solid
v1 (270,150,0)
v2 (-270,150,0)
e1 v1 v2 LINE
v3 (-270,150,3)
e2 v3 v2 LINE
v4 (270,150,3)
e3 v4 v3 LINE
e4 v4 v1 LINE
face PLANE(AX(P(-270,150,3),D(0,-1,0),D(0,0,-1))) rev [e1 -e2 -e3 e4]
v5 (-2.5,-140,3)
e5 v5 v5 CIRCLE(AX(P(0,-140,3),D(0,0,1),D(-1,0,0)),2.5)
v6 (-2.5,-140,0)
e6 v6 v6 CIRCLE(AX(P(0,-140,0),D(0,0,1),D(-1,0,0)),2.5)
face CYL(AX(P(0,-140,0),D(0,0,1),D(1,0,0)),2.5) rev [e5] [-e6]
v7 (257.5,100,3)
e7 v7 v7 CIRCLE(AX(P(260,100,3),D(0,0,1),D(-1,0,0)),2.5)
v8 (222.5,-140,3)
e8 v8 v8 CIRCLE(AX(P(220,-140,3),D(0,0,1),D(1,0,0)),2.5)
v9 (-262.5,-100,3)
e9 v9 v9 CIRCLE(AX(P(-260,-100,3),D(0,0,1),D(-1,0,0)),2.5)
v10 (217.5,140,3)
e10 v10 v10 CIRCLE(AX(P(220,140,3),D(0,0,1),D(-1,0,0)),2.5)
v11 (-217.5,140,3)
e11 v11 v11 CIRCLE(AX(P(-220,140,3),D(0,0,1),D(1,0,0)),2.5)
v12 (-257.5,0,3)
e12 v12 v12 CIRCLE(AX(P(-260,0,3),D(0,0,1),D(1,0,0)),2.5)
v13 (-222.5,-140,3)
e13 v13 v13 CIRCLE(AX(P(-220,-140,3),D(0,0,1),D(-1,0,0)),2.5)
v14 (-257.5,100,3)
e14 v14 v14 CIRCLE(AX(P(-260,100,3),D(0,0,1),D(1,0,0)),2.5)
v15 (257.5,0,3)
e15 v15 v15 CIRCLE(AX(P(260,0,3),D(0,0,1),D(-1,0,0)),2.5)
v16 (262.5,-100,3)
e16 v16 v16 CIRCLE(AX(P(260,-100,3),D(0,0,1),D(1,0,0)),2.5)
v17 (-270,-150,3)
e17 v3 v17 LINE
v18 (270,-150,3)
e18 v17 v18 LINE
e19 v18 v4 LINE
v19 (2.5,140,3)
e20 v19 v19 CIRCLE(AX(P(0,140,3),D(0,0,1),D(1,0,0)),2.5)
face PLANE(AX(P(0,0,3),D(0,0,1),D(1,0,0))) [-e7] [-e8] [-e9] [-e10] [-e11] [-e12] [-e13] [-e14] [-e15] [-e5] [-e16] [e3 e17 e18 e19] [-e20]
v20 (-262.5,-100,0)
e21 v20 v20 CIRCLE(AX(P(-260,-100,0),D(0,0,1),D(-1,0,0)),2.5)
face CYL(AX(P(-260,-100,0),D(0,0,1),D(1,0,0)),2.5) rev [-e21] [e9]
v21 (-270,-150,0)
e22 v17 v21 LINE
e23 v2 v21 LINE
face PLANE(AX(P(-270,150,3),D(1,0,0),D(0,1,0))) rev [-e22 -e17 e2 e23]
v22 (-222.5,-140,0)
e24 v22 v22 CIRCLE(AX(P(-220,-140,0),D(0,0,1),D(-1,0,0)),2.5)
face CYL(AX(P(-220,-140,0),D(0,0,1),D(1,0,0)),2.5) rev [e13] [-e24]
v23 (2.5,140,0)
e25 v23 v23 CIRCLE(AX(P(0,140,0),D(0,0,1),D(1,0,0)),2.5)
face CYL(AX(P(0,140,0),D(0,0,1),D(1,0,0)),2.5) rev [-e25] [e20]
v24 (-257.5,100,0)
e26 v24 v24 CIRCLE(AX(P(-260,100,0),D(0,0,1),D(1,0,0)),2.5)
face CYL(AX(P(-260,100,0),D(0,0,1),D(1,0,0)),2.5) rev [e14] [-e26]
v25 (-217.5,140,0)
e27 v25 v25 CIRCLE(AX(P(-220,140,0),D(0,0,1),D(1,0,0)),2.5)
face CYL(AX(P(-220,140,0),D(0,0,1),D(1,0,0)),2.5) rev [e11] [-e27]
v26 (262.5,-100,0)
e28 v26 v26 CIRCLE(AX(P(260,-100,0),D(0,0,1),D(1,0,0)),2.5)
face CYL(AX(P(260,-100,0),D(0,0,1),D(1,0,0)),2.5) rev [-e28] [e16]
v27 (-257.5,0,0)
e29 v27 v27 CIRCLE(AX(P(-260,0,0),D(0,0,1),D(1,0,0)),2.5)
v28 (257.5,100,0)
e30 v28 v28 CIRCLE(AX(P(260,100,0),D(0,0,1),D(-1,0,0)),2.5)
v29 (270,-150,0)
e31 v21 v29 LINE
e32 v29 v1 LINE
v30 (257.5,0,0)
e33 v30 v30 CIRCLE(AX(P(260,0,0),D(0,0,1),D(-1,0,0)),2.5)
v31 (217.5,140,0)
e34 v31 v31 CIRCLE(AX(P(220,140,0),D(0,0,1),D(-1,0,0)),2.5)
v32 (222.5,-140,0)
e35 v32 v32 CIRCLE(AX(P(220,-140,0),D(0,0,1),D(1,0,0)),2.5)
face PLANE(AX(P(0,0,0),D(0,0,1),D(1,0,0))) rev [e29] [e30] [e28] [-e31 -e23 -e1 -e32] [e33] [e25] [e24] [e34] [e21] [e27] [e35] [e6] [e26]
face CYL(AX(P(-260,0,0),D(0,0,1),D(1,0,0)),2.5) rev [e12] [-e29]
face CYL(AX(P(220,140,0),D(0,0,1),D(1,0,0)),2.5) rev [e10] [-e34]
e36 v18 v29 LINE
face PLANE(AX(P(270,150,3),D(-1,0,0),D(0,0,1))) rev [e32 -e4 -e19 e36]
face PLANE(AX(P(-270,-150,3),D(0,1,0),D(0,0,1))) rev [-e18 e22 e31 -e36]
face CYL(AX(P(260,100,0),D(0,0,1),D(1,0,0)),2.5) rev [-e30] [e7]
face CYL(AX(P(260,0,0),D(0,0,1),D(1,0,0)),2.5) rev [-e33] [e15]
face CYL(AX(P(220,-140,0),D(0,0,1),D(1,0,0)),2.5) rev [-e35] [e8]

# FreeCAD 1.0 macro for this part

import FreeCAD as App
import Part
import Sketcher
Q = App.Units.Quantity


def add_polygon(sketch, points):
    """Adds a closed chain of lines whose ends are joined by coincident constraints."""
    first, n = sketch.GeometryCount, len(points)
    for a, b in zip(points, points[1:] + points[:1]):
        sketch.addGeometry(Part.LineSegment(App.Vector(*a, 0), App.Vector(*b, 0)), False)
    for i in range(n):
        sketch.addConstraint(Sketcher.Constraint("Coincident", first + i, 2, first + (i + 1) % n, 1))

doc = App.newDocument("Part")
body = doc.addObject("PartDesign::Body", "Body")

sketch1 = doc.addObject("Sketcher::SketchObject", "Sketch")
body.addObject(sketch1)
sketch1.AttachmentSupport = (doc.XY_Plane, [""])
sketch1.MapMode = "FlatFace"
add_polygon(sketch1, [(-270, 150), (-270, -150), (270, -150), (270, 150)])
sketch1.addConstraint(Sketcher.Constraint("Vertical", 0))
sketch1.addConstraint(Sketcher.Constraint("Horizontal", 1))
sketch1.addConstraint(Sketcher.Constraint("Vertical", 2))
sketch1.addConstraint(Sketcher.Constraint("Horizontal", 3))
sketch1.addConstraint(Sketcher.Constraint("Symmetric", 0, 2, 2, 2, -1, 1))
sketch1.addConstraint(Sketcher.Constraint("DistanceX", 1, 1, 1, 2, Q("540 mm")))
sketch1.addConstraint(Sketcher.Constraint("DistanceY", 0, 2, 0, 1, Q("300 mm")))
pad1 = doc.addObject("PartDesign::Pad", "Pad")
body.addObject(pad1)
pad1.Profile = sketch1
pad1.Length = 3

sketch2 = doc.addObject("Sketcher::SketchObject", "Sketch001")
body.addObject(sketch2)
sketch2.AttachmentSupport = (doc.XY_Plane, [""])
sketch2.MapMode = "FlatFace"
sketch2.AttachmentOffset = App.Placement(App.Vector(0, 0, 3), App.Rotation())
sketch2.addGeometry(Part.Circle(App.Vector(0, 140, 0), App.Vector(0, 0, 1), 2.5), False)
sketch2.addGeometry(Part.Circle(App.Vector(-220, 140, 0), App.Vector(0, 0, 1), 2.5), False)
sketch2.addGeometry(Part.Circle(App.Vector(-260, 0, 0), App.Vector(0, 0, 1), 2.5), False)
sketch2.addGeometry(Part.Circle(App.Vector(-260, 100, 0), App.Vector(0, 0, 1), 2.5), False)
sketch2.addGeometry(Part.Circle(App.Vector(-260, -100, 0), App.Vector(0, 0, 1), 2.5), False)
sketch2.addGeometry(Part.Circle(App.Vector(220, 140, 0), App.Vector(0, 0, 1), 2.5), False)
sketch2.addGeometry(Part.Circle(App.Vector(260, -100, 0), App.Vector(0, 0, 1), 2.5), False)
sketch2.addGeometry(Part.Circle(App.Vector(260, 0, 0), App.Vector(0, 0, 1), 2.5), False)
sketch2.addGeometry(Part.Circle(App.Vector(260, 100, 0), App.Vector(0, 0, 1), 2.5), False)
sketch2.addGeometry(Part.Circle(App.Vector(220, -140, 0), App.Vector(0, 0, 1), 2.5), False)
sketch2.addGeometry(Part.Circle(App.Vector(0, -140, 0), App.Vector(0, 0, 1), 2.5), False)
sketch2.addGeometry(Part.Circle(App.Vector(-220, -140, 0), App.Vector(0, 0, 1), 2.5), False)
sketch2.addConstraint(Sketcher.Constraint("Equal", 0, 1))
sketch2.addConstraint(Sketcher.Constraint("Equal", 1, 2))
sketch2.addConstraint(Sketcher.Constraint("Equal", 2, 3))
sketch2.addConstraint(Sketcher.Constraint("Equal", 3, 4))
sketch2.addConstraint(Sketcher.Constraint("Equal", 4, 5))
sketch2.addConstraint(Sketcher.Constraint("Equal", 5, 6))
sketch2.addConstraint(Sketcher.Constraint("Equal", 6, 7))
sketch2.addConstraint(Sketcher.Constraint("Equal", 7, 8))
sketch2.addConstraint(Sketcher.Constraint("Equal", 8, 9))
sketch2.addConstraint(Sketcher.Constraint("Equal", 9, 10))
sketch2.addConstraint(Sketcher.Constraint("Equal", 10, 11))
sketch2.addConstraint(Sketcher.Constraint("Symmetric", 3, 3, 6, 3, -1, 1))
sketch2.addConstraint(Sketcher.Constraint("Symmetric", 2, 3, 7, 3, -1, 1))
sketch2.addConstraint(Sketcher.Constraint("Symmetric", 4, 3, 8, 3, -1, 1))
sketch2.addConstraint(Sketcher.Constraint("Symmetric", 1, 3, 9, 3, -1, 1))
sketch2.addConstraint(Sketcher.Constraint("Symmetric", 0, 3, 10, 3, -1, 1))
sketch2.addConstraint(Sketcher.Constraint("Symmetric", 5, 3, 11, 3, -1, 1))
sketch2.addConstraint(Sketcher.Constraint("Symmetric", 1, 3, 5, 3, -2))
sketch2.addConstraint(Sketcher.Constraint("Symmetric", 4, 3, 6, 3, -2))
sketch2.addConstraint(Sketcher.Constraint("PointOnObject", 0, 3, -2))
sketch2.addConstraint(Sketcher.Constraint("PointOnObject", 2, 3, -1))
sketch2.addConstraint(Sketcher.Constraint("Horizontal", 0, 3, 1, 3))
sketch2.addConstraint(Sketcher.Constraint("Vertical", 2, 3, 3, 3))
sketch2.addConstraint(Sketcher.Constraint("Diameter", 0, Q("5 mm")))
sketch2.addConstraint(Sketcher.Constraint("DistanceY", -1, 1, 0, 3, Q("140 mm")))
sketch2.addConstraint(Sketcher.Constraint("DistanceX", 1, 3, -1, 1, Q("220 mm")))
sketch2.addConstraint(Sketcher.Constraint("DistanceX", 2, 3, -1, 1, Q("260 mm")))
sketch2.addConstraint(Sketcher.Constraint("DistanceY", -1, 1, 3, 3, Q("100 mm")))
pocket1 = doc.addObject("PartDesign::Pocket", "Pocket")
body.addObject(pocket1)
pocket1.Profile = sketch2
pocket1.Type = "ThroughAll"

doc.recompute()
